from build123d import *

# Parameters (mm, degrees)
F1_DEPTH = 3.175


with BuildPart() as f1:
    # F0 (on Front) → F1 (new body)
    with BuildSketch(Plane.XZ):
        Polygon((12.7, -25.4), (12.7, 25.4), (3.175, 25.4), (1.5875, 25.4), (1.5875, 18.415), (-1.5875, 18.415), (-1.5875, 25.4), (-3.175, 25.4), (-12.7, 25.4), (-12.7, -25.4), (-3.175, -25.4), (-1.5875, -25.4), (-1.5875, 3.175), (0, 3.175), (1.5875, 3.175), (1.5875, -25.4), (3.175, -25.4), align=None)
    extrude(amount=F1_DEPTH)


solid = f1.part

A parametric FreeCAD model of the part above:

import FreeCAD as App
import Part
import Sketcher

V = App.Vector
Q = App.Units.Quantity


def add_polygon(sketch, points):
    """Adds a closed chain of lines whose ends are joined by coincident constraints."""
    first, n = sketch.GeometryCount, len(points)
    for a, b in zip(points, points[1:] + points[:1]):
        sketch.addGeometry(Part.LineSegment(App.Vector(*a, 0), App.Vector(*b, 0)), False)
    for i in range(n):
        sketch.addConstraint(Sketcher.Constraint("Coincident", first + i, 2, first + (i + 1) % n, 1))

doc = App.newDocument("Part")
body = doc.addObject("PartDesign::Body", "Body")

# Sketch on XZ plane
sketch1 = body.newObject("Sketcher::SketchObject", "Sketch")
sketch1.AttachmentSupport = (doc.getObject("XZ_Plane"), [""])
sketch1.MapMode = "FlatFace"
add_polygon(sketch1, [(12.7, -25.4), (12.7, 25.4), (1.6, 25.4), (1.6, 18.4), (-1.6, 18.4), (-1.6, 25.4), (-12.7, 25.4), (-12.7, -25.4), (-1.6, -25.4), (-1.6, 3.2), (1.6, 3.2), (1.6, -25.4)])  # lines 0-11
sketch1.addConstraint([
    Sketcher.Constraint("Vertical", 0),
    Sketcher.Constraint("Horizontal", 1),
    Sketcher.Constraint("Vertical", 2),
    Sketcher.Constraint("Horizontal", 3),
    Sketcher.Constraint("Vertical", 4),
    Sketcher.Constraint("Horizontal", 5),
    Sketcher.Constraint("Vertical", 6),
    Sketcher.Constraint("Horizontal", 7),
    Sketcher.Constraint("Vertical", 8),
    Sketcher.Constraint("Horizontal", 9),
    Sketcher.Constraint("Vertical", 10),
    Sketcher.Constraint("Horizontal", 11),
    Sketcher.Constraint("Symmetric", 0, 2, 6, 2, -1, 1),
    Sketcher.Constraint("Symmetric", 4, 2, 10, 2, -1, 1),
    Sketcher.Constraint("Symmetric", 1, 2, 4, 2, -2),
    Sketcher.Constraint("Vertical", 4, 2, 7, 2),
    Sketcher.Constraint("DistanceY", 0, 1, 0, 2, Q("2 in")),
    Sketcher.Constraint("DistanceX", 5, 2, 0, 2, Q("1 in")),
    Sketcher.Constraint("DistanceY", 8, 2, 3, 2, Q("0.6 in")),
    Sketcher.Constraint("DistanceX", 1, 2, 1, 1, Q("0.4375 in")),
    Sketcher.Constraint("DistanceY", 2, 2, 2, 1, Q("0.275 in")),
])
pad1 = body.newObject("PartDesign::Pad", "Pad")
pad1.Profile = sketch1
pad1.Length = Q("0.125 in")

doc.recompute()
